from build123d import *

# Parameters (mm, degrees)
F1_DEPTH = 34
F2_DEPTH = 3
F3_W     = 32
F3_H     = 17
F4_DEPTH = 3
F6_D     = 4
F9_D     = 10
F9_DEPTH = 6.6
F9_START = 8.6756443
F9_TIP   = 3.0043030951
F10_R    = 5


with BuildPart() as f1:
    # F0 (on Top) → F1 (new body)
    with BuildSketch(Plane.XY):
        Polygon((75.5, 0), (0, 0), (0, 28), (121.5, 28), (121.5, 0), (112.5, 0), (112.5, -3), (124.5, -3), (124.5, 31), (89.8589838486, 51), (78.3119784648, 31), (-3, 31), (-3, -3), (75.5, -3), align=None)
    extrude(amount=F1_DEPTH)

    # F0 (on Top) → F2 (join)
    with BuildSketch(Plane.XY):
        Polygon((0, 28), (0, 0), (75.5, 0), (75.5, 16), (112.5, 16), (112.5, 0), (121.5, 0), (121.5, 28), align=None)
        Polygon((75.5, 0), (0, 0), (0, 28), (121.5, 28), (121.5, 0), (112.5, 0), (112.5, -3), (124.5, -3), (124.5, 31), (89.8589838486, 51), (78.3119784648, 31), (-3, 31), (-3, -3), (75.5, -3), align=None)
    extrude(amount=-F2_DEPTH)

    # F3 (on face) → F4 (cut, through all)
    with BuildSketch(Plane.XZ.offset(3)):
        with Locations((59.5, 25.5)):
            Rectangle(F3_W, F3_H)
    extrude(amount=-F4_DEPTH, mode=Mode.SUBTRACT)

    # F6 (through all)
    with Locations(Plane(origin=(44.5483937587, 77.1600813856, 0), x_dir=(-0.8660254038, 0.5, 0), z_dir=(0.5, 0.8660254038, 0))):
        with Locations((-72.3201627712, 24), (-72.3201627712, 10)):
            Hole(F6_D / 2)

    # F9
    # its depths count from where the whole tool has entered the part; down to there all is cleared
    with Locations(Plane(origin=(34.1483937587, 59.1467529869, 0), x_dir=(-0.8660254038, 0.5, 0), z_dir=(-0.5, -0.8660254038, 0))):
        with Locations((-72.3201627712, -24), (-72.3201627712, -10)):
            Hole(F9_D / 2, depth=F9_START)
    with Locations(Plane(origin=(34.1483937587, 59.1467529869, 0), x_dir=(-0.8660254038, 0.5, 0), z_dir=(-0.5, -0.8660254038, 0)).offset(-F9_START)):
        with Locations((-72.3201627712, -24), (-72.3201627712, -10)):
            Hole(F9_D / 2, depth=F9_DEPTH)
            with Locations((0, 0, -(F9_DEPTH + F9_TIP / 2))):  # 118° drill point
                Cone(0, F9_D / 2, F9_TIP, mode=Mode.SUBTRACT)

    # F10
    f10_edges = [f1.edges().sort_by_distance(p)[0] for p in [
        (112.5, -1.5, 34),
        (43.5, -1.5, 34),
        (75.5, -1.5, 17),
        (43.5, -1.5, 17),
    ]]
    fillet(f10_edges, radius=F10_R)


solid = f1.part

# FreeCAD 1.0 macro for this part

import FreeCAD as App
import Part
import Sketcher

V = App.Vector
Q = App.Units.Quantity


def edges_at(feature, points):
    """Names of the edges that pass closest to the given points."""
    edges = feature.Shape.Edges
    near = lambda p: min(range(len(edges)), key=lambda i: edges[i].distToShape(Part.Vertex(*p))[0])
    return sorted({f"Edge{near(p) + 1}" for p in points})

doc = App.newDocument("Part")
body = doc.addObject("PartDesign::Body", "Body")

sketch1 = body.newObject("Sketcher::SketchObject", "Sketch")
sketch1.AttachmentSupport = (doc.getObject("XY_Plane"), [""])
sketch1.MapMode = "FlatFace"
sketch1.addGeometry(Part.LineSegment(V(75.5, 0, 0), V(0, 0, 0)), False)
sketch1.addGeometry(Part.LineSegment(V(0, 0, 0), V(0, 28, 0)), False)
sketch1.addGeometry(Part.LineSegment(V(0, 28, 0), V(121.5, 28, 0)), False)
sketch1.addGeometry(Part.LineSegment(V(121.5, 28, 0), V(121.5, 0, 0)), False)
sketch1.addGeometry(Part.LineSegment(V(121.5, 0, 0), V(112.5, 0, 0)), False)
sketch1.addGeometry(Part.LineSegment(V(112.5, 0, 0), V(112.5, -3, 0)), False)
sketch1.addGeometry(Part.LineSegment(V(112.5, -3, 0), V(124.5, -3, 0)), False)
sketch1.addGeometry(Part.LineSegment(V(124.5, -3, 0), V(124.5, 31, 0)), False)
sketch1.addGeometry(Part.LineSegment(V(124.5, 31, 0), V(89.9, 51, 0)), False)
sketch1.addGeometry(Part.LineSegment(V(89.9, 51, 0), V(78.3, 31, 0)), False)
sketch1.addGeometry(Part.LineSegment(V(78.3, 31, 0), V(-3, 31, 0)), False)
sketch1.addGeometry(Part.LineSegment(V(-3, 31, 0), V(-3, -3, 0)), False)
sketch1.addGeometry(Part.LineSegment(V(-3, -3, 0), V(75.5, -3, 0)), False)
sketch1.addGeometry(Part.LineSegment(V(75.5, -3, 0), V(75.5, 0, 0)), False)
sketch1.addConstraint(Sketcher.Constraint("Coincident", 0, 2, 1, 1))
sketch1.addConstraint(Sketcher.Constraint("Coincident", 1, 2, 2, 1))
sketch1.addConstraint(Sketcher.Constraint("Coincident", 2, 2, 3, 1))
sketch1.addConstraint(Sketcher.Constraint("Coincident", 3, 2, 4, 1))
sketch1.addConstraint(Sketcher.Constraint("Coincident", 4, 2, 5, 1))
sketch1.addConstraint(Sketcher.Constraint("Coincident", 5, 2, 6, 1))
sketch1.addConstraint(Sketcher.Constraint("Coincident", 6, 2, 7, 1))
sketch1.addConstraint(Sketcher.Constraint("Coincident", 7, 2, 8, 1))
sketch1.addConstraint(Sketcher.Constraint("Coincident", 8, 2, 9, 1))
sketch1.addConstraint(Sketcher.Constraint("Coincident", 9, 2, 10, 1))
sketch1.addConstraint(Sketcher.Constraint("Coincident", 10, 2, 11, 1))
sketch1.addConstraint(Sketcher.Constraint("Coincident", 11, 2, 12, 1))
sketch1.addConstraint(Sketcher.Constraint("Coincident", 12, 2, 13, 1))
sketch1.addConstraint(Sketcher.Constraint("Coincident", 13, 2, 0, 1))
sketch1.addConstraint(Sketcher.Constraint("Horizontal", 0))
sketch1.addConstraint(Sketcher.Constraint("Vertical", 1))
sketch1.addConstraint(Sketcher.Constraint("Horizontal", 2))
sketch1.addConstraint(Sketcher.Constraint("Vertical", 3))
sketch1.addConstraint(Sketcher.Constraint("Horizontal", 4))
sketch1.addConstraint(Sketcher.Constraint("Vertical", 5))
sketch1.addConstraint(Sketcher.Constraint("Horizontal", 6))
sketch1.addConstraint(Sketcher.Constraint("Vertical", 7))
sketch1.addConstraint(Sketcher.Constraint("Horizontal", 10))
sketch1.addConstraint(Sketcher.Constraint("Vertical", 11))
sketch1.addConstraint(Sketcher.Constraint("Horizontal", 12))
sketch1.addConstraint(Sketcher.Constraint("Vertical", 13))
sketch1.addConstraint(Sketcher.Constraint("Coincident", 0, 2, -1, 1))
sketch1.addConstraint(Sketcher.Constraint("PointOnObject", 3, 2, -1))
sketch1.addConstraint(Sketcher.Constraint("Perpendicular", 8, 9))
sketch1.addConstraint(Sketcher.Constraint("Horizontal", 7, 2, 9, 2))
sketch1.addConstraint(Sketcher.Constraint("Horizontal", 6, 2, 11, 2))
sketch1.addConstraint(Sketcher.Constraint("DistanceX", 4, 2, 4, 1, Q("9 mm")))
sketch1.addConstraint(Sketcher.Constraint("DistanceX", 6, 1, 6, 2, Q("12 mm")))
sketch1.addConstraint(Sketcher.Constraint("DistanceY", 1, 1, 1, 2, Q("28 mm")))
sketch1.addConstraint(Sketcher.Constraint("DistanceY", 5, 2, 5, 1, Q("3 mm")))
sketch1.addConstraint(Sketcher.Constraint("DistanceY", 7, 1, 7, 2, Q("34 mm")))
sketch1.addConstraint(Sketcher.Constraint("Angle", 8, Q("150 deg")))
sketch1.addConstraint(Sketcher.Constraint("Distance", 8, Q("40 mm")))
sketch1.addConstraint(Sketcher.Constraint("DistanceX", 0, 2, 0, 1, Q("75.5 mm")))
sketch1.addConstraint(Sketcher.Constraint("DistanceX", 2, 1, 2, 2, Q("121.5 mm")))
sketch1.addConstraint(Sketcher.Constraint("DistanceX", 12, 1, 12, 2, Q("78.5 mm")))
pad1 = body.newObject("PartDesign::Pad", "Pad")
pad1.Profile = sketch1
pad1.Length = 34

sketch2 = body.newObject("Sketcher::SketchObject", "Sketch001")
sketch2.AttachmentSupport = (doc.getObject("XY_Plane"), [""])
sketch2.MapMode = "FlatFace"
sketch2.addGeometry(Part.LineSegment(V(76, 16, 0), V(112, 16, 0)), False)
sketch2.addGeometry(Part.LineSegment(V(112, 16, 0), V(112, -3, 0)), False)
sketch2.addGeometry(Part.LineSegment(V(112, -3, 0), V(124, -3, 0)), False)
sketch2.addGeometry(Part.LineSegment(V(124, -3, 0), V(124, 31, 0)), False)
sketch2.addGeometry(Part.LineSegment(V(124, 31, 0), V(90, 51, 0)), False)
sketch2.addGeometry(Part.LineSegment(V(90, 51, 0), V(78, 31, 0)), False)
sketch2.addGeometry(Part.LineSegment(V(78, 31, 0), V(-3, 31, 0)), False)
sketch2.addGeometry(Part.LineSegment(V(-3, 31, 0), V(-3, -3, 0)), False)
sketch2.addGeometry(Part.LineSegment(V(-3, -3, 0), V(76, -3, 0)), False)
sketch2.addGeometry(Part.LineSegment(V(76, -3, 0), V(76, 16, 0)), False)
sketch2.addConstraint(Sketcher.Constraint("Coincident", 0, 2, 1, 1))
sketch2.addConstraint(Sketcher.Constraint("Coincident", 1, 2, 2, 1))
sketch2.addConstraint(Sketcher.Constraint("Coincident", 2, 2, 3, 1))
sketch2.addConstraint(Sketcher.Constraint("Coincident", 3, 2, 4, 1))
sketch2.addConstraint(Sketcher.Constraint("Coincident", 4, 2, 5, 1))
sketch2.addConstraint(Sketcher.Constraint("Coincident", 5, 2, 6, 1))
sketch2.addConstraint(Sketcher.Constraint("Coincident", 6, 2, 7, 1))
sketch2.addConstraint(Sketcher.Constraint("Coincident", 7, 2, 8, 1))
sketch2.addConstraint(Sketcher.Constraint("Coincident", 8, 2, 9, 1))
sketch2.addConstraint(Sketcher.Constraint("Coincident", 9, 2, 0, 1))
sketch2.addConstraint(Sketcher.Constraint("Horizontal", 0))
sketch2.addConstraint(Sketcher.Constraint("Vertical", 1))
sketch2.addConstraint(Sketcher.Constraint("Horizontal", 2))
sketch2.addConstraint(Sketcher.Constraint("Vertical", 3))
sketch2.addConstraint(Sketcher.Constraint("Horizontal", 6))
sketch2.addConstraint(Sketcher.Constraint("Vertical", 7))
sketch2.addConstraint(Sketcher.Constraint("Horizontal", 8))
sketch2.addConstraint(Sketcher.Constraint("Vertical", 9))
sketch2.addConstraint(Sketcher.Constraint("Perpendicular", 4, 5))
sketch2.addConstraint(Sketcher.Constraint("Horizontal", 3, 2, 5, 2))
sketch2.addConstraint(Sketcher.Constraint("Horizontal", 2, 2, 7, 2))
sketch2.addConstraint(Sketcher.Constraint("DistanceX", 0, 1, 0, 2, Q("37 mm")))
sketch2.addConstraint(Sketcher.Constraint("DistanceX", 2, 1, 2, 2, Q("12 mm")))
sketch2.addConstraint(Sketcher.Constraint("DistanceY", 1, 2, 1, 1, Q("19 mm")))
sketch2.addConstraint(Sketcher.Constraint("DistanceY", 3, 1, 3, 2, Q("34 mm")))
sketch2.addConstraint(Sketcher.Constraint("Angle", 4, Q("150 deg")))
sketch2.addConstraint(Sketcher.Constraint("Distance", 4, Q("40 mm")))
sketch2.addConstraint(Sketcher.Constraint("DistanceX", 8, 1, 8, 2, Q("78.5 mm")))
sketch2.addConstraint(Sketcher.Constraint("DistanceY", -1, 1, 0, 2, Q("16 mm")))
sketch2.addConstraint(Sketcher.Constraint("DistanceX", 6, 2, -1, 1, Q("3 mm")))
pad2 = body.newObject("PartDesign::Pad", "Pad001")
pad2.Profile = sketch2
pad2.Length = 3
pad2.Reversed = True

sketch3 = body.newObject("Sketcher::SketchObject", "Sketch002")
sketch3.AttachmentSupport = (doc.getObject("XZ_Plane"), [""])
sketch3.MapMode = "FlatFace"
sketch3.AttachmentOffset = App.Placement(V(0, 0, 3), App.Rotation())
sketch3.addGeometry(Part.LineSegment(V(44, 34, 0), V(44, 17, 0)), False)
sketch3.addGeometry(Part.LineSegment(V(44, 17, 0), V(76, 17, 0)), False)
sketch3.addGeometry(Part.LineSegment(V(76, 17, 0), V(76, 34, 0)), False)
sketch3.addGeometry(Part.LineSegment(V(76, 34, 0), V(44, 34, 0)), False)
sketch3.addConstraint(Sketcher.Constraint("Coincident", 0, 2, 1, 1))
sketch3.addConstraint(Sketcher.Constraint("Coincident", 1, 2, 2, 1))
sketch3.addConstraint(Sketcher.Constraint("Coincident", 2, 2, 3, 1))
sketch3.addConstraint(Sketcher.Constraint("Coincident", 3, 2, 0, 1))
sketch3.addConstraint(Sketcher.Constraint("Vertical", 0))
sketch3.addConstraint(Sketcher.Constraint("Horizontal", 1))
sketch3.addConstraint(Sketcher.Constraint("Vertical", 2))
sketch3.addConstraint(Sketcher.Constraint("Horizontal", 3))
sketch3.addConstraint(Sketcher.Constraint("DistanceX", 1, 1, 1, 2, Q("32 mm")))
sketch3.addConstraint(Sketcher.Constraint("DistanceY", 0, 2, 0, 1, Q("17 mm")))
sketch3.addConstraint(Sketcher.Constraint("DistanceY", -1, 1, 0, 2, Q("17 mm")))
sketch3.addConstraint(Sketcher.Constraint("DistanceX", -1, 1, 0, 2, Q("43.5 mm")))
pocket1 = body.newObject("PartDesign::Pocket", "Pocket")
pocket1.Profile = sketch3
pocket1.Length = 3

sketch4 = body.newObject("Sketcher::SketchObject", "Sketch003")
sketch4.Placement = App.Placement(V(44.548394, 77.160081, 0), App.Rotation(V(-0.866025404, 0.5, 0), V(0, 0, 1), V(0.5, 0.866025404, 0), "ZXY"))
sketch4.addGeometry(Part.Circle(V(-72.3, 24, 0), V(0, 0, 1), 2), False)
sketch4.addGeometry(Part.Circle(V(-72.3, 10, 0), V(0, 0, 1), 2), False)
sketch4.addConstraint(Sketcher.Constraint("Equal", 0, 1))
sketch4.addConstraint(Sketcher.Constraint("Vertical", 0, 3, 1, 3))
sketch4.addConstraint(Sketcher.Constraint("Diameter", 0, Q("4 mm")))
sketch4.addConstraint(Sketcher.Constraint("DistanceY", -1, 1, 0, 3, Q("24 mm")))
sketch4.addConstraint(Sketcher.Constraint("DistanceY", -1, 1, 1, 3, Q("10 mm")))
sketch4.addConstraint(Sketcher.Constraint("DistanceX", 0, 3, -1, 1, Q("72.320163 mm")))
doc.recompute()
hole = body.newObject("PartDesign::Hole", "Hole")
hole.Profile = sketch4
hole.ThreadType = "None"
hole.Diameter = 4
hole.DepthType = "ThroughAll"

sketch5 = body.newObject("Sketcher::SketchObject", "Sketch004")
sketch5.Placement = App.Placement(V(34.148394, 59.146753, 0), App.Rotation(V(-0.866025404, 0.5, 0), V(0, 0, -1), V(-0.5, -0.866025404, 0), "ZXY"))
sketch5.addGeometry(Part.Circle(V(-72, -24, 0), V(0, 0, 1), 5), False)
sketch5.addGeometry(Part.Circle(V(-72, -10, 0), V(0, 0, 1), 5), False)
sketch5.addConstraint(Sketcher.Constraint("Equal", 0, 1))
sketch5.addConstraint(Sketcher.Constraint("Vertical", 0, 3, 1, 3))
sketch5.addConstraint(Sketcher.Constraint("Diameter", 0, Q("10 mm")))
sketch5.addConstraint(Sketcher.Constraint("DistanceY", 0, 3, -1, 1, Q("24 mm")))
sketch5.addConstraint(Sketcher.Constraint("DistanceY", 1, 3, -1, 1, Q("10 mm")))
sketch5.addConstraint(Sketcher.Constraint("DistanceX", 0, 3, -1, 1, Q("72.320163 mm")))
doc.recompute()
hole2 = body.newObject("PartDesign::Hole", "Hole001")
hole2.Profile = sketch5
hole2.ThreadType = "None"
hole2.Diameter = 10
hole2.DepthType = "Dimension"
hole2.Depth = 8.675644
hole2.DrillPoint = "Flat"

sketch6 = body.newObject("Sketcher::SketchObject", "Sketch005")
sketch6.Placement = App.Placement(V(38.486216, 66.660081, 0), App.Rotation(V(-0.866025404, 0.5, 0), V(0, 0, -1), V(-0.5, -0.866025404, 0), "ZXY"))
sketch6.addGeometry(Part.Circle(V(-72, -24, 0), V(0, 0, 1), 5), False)
sketch6.addGeometry(Part.Circle(V(-72, -10, 0), V(0, 0, 1), 5), False)
sketch6.addConstraint(Sketcher.Constraint("Equal", 0, 1))
sketch6.addConstraint(Sketcher.Constraint("Vertical", 0, 3, 1, 3))
sketch6.addConstraint(Sketcher.Constraint("Diameter", 0, Q("10 mm")))
sketch6.addConstraint(Sketcher.Constraint("DistanceY", 0, 3, -1, 1, Q("24 mm")))
sketch6.addConstraint(Sketcher.Constraint("DistanceY", 1, 3, -1, 1, Q("10 mm")))
sketch6.addConstraint(Sketcher.Constraint("DistanceX", 0, 3, -1, 1, Q("72.320163 mm")))
doc.recompute()
hole3 = body.newObject("PartDesign::Hole", "Hole002")
hole3.Profile = sketch6
hole3.ThreadType = "None"
hole3.Diameter = 10
hole3.DepthType = "Dimension"
hole3.Depth = 6.6
hole3.DrillPoint = "Angled"
hole3.DrillPointAngle = 118
doc.recompute()

fillet = body.newObject("PartDesign::Fillet", "Fillet")
fillet.Base = (hole3, edges_at(hole3, [
    (112.5, -1.5, 34),
    (43.5, -1.5, 34),
    (75.5, -1.5, 17),
    (43.5, -1.5, 17),
]))
fillet.Radius = 5

doc.recompute()
